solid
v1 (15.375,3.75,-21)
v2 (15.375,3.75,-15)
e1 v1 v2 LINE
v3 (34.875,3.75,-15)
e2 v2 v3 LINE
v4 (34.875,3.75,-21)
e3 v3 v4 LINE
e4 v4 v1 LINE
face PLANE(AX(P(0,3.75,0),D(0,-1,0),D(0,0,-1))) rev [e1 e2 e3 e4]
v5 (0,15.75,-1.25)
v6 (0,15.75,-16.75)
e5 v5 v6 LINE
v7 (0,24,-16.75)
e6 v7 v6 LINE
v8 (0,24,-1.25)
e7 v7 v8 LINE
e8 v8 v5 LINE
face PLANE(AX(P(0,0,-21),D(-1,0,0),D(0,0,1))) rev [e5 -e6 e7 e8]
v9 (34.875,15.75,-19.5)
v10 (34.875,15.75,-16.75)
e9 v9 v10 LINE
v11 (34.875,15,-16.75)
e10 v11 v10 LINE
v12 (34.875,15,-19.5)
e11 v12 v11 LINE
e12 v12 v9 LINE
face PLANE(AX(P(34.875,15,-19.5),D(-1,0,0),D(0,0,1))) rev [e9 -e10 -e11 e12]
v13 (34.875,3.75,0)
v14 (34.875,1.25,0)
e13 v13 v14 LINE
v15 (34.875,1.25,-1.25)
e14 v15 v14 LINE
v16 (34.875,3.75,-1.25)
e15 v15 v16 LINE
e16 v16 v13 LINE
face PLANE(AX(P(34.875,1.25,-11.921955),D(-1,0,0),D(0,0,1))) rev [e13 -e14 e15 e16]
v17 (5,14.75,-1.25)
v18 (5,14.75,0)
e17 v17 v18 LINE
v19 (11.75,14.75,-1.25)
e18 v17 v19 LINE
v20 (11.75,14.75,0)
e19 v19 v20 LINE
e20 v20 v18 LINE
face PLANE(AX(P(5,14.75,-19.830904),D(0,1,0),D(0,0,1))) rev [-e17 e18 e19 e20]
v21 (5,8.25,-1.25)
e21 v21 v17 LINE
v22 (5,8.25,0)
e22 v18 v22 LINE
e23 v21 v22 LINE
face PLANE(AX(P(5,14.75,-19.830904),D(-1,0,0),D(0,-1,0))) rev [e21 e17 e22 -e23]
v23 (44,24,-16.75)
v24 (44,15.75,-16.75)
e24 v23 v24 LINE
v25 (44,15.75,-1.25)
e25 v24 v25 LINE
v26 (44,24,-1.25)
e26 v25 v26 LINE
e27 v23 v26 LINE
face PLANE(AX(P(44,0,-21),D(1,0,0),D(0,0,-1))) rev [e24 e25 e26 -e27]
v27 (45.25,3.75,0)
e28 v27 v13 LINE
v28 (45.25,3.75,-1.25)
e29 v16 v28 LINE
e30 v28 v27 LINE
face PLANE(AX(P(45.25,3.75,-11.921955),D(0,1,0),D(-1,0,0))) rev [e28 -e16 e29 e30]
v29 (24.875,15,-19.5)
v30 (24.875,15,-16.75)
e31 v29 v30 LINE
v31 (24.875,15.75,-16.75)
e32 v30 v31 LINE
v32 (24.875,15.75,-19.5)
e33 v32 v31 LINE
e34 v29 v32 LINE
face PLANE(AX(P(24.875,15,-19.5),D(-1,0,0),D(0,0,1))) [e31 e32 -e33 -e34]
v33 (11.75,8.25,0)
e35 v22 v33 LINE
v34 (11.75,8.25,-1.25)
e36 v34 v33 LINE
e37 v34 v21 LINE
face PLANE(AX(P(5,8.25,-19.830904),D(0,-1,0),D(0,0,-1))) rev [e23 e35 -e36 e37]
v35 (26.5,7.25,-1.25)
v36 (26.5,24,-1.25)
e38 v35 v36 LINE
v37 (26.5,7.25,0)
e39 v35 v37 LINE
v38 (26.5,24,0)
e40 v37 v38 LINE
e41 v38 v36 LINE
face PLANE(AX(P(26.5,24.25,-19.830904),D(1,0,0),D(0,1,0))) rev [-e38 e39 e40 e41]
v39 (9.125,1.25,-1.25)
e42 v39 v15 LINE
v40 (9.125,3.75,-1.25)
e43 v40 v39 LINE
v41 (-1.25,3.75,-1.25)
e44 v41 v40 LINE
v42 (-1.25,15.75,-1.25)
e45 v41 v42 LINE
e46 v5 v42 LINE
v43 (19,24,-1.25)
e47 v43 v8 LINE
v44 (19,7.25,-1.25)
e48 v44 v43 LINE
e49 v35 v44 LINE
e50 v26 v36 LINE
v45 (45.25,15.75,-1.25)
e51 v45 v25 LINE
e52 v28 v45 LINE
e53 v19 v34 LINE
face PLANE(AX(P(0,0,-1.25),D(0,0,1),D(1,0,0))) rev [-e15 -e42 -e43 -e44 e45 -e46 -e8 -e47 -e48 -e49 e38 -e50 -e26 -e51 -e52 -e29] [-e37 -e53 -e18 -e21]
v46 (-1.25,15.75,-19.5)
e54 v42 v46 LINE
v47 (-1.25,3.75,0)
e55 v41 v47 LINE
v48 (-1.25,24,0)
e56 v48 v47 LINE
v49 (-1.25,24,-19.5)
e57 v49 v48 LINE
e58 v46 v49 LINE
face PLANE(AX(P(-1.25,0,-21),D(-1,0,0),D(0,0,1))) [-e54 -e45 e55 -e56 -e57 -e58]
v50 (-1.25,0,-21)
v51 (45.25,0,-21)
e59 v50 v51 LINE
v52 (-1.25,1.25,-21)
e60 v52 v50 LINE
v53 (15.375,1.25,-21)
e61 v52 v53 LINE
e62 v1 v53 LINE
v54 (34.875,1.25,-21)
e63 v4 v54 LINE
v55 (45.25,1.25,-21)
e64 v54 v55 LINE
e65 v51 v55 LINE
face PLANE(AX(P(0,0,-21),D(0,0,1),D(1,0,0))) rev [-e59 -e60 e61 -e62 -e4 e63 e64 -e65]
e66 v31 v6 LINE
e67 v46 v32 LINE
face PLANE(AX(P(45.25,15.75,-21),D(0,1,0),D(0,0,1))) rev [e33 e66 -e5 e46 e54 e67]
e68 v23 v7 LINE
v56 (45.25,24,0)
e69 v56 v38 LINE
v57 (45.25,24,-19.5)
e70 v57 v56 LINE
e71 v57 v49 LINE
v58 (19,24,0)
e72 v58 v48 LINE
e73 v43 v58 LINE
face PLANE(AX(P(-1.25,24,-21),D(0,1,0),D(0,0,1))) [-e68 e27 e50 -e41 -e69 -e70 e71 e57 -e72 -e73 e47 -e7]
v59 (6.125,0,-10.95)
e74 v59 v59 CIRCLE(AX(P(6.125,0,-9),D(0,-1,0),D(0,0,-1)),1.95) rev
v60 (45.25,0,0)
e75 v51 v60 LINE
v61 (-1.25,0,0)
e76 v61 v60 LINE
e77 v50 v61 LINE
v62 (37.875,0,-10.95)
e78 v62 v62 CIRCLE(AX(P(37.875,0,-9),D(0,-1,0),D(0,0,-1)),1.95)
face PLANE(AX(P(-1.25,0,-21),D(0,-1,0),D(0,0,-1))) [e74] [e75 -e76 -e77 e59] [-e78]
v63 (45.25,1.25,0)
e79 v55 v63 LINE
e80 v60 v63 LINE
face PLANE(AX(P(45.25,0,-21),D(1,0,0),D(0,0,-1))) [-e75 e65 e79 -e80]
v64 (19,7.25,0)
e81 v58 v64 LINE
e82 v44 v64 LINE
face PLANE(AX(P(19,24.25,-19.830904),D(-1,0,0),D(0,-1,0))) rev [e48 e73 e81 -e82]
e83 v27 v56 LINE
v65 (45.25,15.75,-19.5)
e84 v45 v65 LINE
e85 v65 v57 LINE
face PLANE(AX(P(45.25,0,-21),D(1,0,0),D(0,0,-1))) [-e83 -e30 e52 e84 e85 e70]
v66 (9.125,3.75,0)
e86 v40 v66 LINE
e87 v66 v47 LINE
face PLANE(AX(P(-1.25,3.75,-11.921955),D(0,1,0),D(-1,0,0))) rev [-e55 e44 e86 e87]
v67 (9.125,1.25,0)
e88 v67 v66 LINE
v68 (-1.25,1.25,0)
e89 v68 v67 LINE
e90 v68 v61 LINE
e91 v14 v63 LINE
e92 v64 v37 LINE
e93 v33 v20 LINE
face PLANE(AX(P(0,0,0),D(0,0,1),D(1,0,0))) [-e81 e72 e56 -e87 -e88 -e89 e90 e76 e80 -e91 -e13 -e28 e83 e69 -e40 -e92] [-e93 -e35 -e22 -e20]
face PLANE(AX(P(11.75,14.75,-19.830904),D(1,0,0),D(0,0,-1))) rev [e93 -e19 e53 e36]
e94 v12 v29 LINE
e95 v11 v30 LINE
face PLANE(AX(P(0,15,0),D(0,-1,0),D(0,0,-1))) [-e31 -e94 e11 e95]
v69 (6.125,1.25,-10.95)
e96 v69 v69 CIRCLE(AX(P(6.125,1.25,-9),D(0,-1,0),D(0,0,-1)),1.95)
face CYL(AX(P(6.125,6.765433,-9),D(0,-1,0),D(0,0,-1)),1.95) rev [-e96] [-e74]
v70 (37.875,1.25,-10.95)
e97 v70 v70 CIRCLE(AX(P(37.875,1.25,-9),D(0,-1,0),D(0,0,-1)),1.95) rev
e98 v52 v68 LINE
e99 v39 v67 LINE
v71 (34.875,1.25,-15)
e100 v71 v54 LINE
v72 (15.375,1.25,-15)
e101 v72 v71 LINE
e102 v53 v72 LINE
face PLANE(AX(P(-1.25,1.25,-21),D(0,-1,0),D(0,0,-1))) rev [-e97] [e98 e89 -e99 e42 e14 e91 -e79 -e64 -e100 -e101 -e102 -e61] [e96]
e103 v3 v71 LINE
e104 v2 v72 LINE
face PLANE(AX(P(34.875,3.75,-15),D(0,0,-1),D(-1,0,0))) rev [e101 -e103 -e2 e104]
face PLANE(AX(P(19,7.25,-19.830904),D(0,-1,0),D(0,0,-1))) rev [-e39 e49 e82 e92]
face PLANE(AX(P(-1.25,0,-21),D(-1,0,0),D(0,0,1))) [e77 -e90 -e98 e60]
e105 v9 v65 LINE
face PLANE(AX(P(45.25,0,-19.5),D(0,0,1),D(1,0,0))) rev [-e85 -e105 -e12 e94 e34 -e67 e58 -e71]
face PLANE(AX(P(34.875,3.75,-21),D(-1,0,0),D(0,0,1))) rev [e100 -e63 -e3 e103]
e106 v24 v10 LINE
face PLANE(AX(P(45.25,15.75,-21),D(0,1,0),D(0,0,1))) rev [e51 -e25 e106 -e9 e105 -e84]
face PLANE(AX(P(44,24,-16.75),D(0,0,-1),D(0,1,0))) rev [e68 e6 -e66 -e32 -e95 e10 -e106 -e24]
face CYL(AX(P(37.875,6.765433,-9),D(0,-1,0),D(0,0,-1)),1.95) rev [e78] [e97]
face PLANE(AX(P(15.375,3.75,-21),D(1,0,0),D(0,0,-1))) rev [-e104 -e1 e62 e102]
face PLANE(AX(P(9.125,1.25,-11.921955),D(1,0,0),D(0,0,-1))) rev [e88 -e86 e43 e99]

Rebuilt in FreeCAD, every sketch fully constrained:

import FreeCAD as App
import Part
import Sketcher
Q = App.Units.Quantity


def faces_at(feature, points):
    """Names of the faces that lie closest to the given points."""
    faces = feature.Shape.Faces
    near = lambda p: min(range(len(faces)), key=lambda i: faces[i].distToShape(Part.Vertex(*p))[0])
    return sorted({f"Face{near(p) + 1}" for p in points})

doc = App.newDocument("Part")
params = doc.addObject("Spreadsheet::Sheet", "Params")
for row, (alias, value) in enumerate([
    ("sketch1_height", "24 mm"),
    ("sketch1_width", "46.5 mm"),
    ("pad1_length", "21 mm"),
    ("thickness_wall", "1.25 mm"),
    ("sketch2_width", "14.5 mm"),
    ("sketch2_height", "19.75 mm"),
    ("sketch3_height", "17 mm"),
    ("sketch3_width", "7.5 mm"),
    ("sketch3_height2", "6.5 mm"),
    ("sketch3_width2", "6.75 mm"),
    ("pocket2_length", "1.25 mm"),
    ("sketch4_diameter", "3.9 mm"),
    ("sketch5_diameter", "3.9 mm"),
    ("sketch6_height", "2.5 mm"),
    ("pocket5_length", "1.25 mm"),
    ("sketch7_height", "6 mm"),
    ("sketch7_width", "19.5 mm"),
    ("pad2_length", "2.5 mm"),
    ("sketch8_height", "1.5 mm"),
    ("sketch8_width", "8.25 mm"),
    ("sketch9_width", "8.25 mm"),
    ("sketch9_height", "2.75 mm"),
    ("pad3_length", "44 mm"),
    ("sketch10_width", "10 mm"),
    ("sketch10_height", "2.75 mm"),
    ("pad4_length", "0.75 mm"),
], start=1):
    params.set(f"A{row}", alias)
    params.set(f"B{row}", "=" + value)
    params.setAlias(f"B{row}", alias)

body = doc.addObject("PartDesign::Body", "Body")

# Sketch on XY plane
sketch1 = body.newObject("Sketcher::SketchObject", "Sketch")
sketch1.AttachmentSupport = (doc.getObject("XY_Plane"), [""])
sketch1.MapMode = "FlatFace"
sketch1.addGeometry([
    Part.LineSegment(App.Vector(-1, 24, 0), App.Vector(-1, 0, 0)),
    Part.LineSegment(App.Vector(-1, 0, 0), App.Vector(45, 0, 0)),
    Part.LineSegment(App.Vector(45, 0, 0), App.Vector(45, 24, 0)),
    Part.LineSegment(App.Vector(45, 24, 0), App.Vector(-1, 24, 0)),
], False)
sketch1.addConstraint([
    Sketcher.Constraint("Coincident", 0, 2, 1, 1),
    Sketcher.Constraint("Coincident", 1, 2, 2, 1),
    Sketcher.Constraint("Coincident", 2, 2, 3, 1),
    Sketcher.Constraint("Coincident", 3, 2, 0, 1),
    Sketcher.Constraint("Vertical", 0),
    Sketcher.Constraint("Horizontal", 1),
    Sketcher.Constraint("Vertical", 2),
    Sketcher.Constraint("Horizontal", 3),
    Sketcher.Constraint("PointOnObject", 0, 2, -1),
    Sketcher.Constraint("DistanceY", 0, 2, 0, 1, Q("24 mm")),
    Sketcher.Constraint("DistanceX", 1, 1, 1, 2, Q("46.5 mm")),
    Sketcher.Constraint("DistanceX", 0, 2, -1, 1, Q("1.25 mm")),
])
sketch1.setExpression("Constraints[9]", "Params.sketch1_height")
sketch1.setExpression("Constraints[10]", "Params.sketch1_width")
pad1 = body.newObject("PartDesign::Pad", "Pad")
pad1.Profile = sketch1
pad1.setExpression("Length", "Params.pad1_length")
pad1.Reversed = True
doc.recompute()

thickness = body.newObject("PartDesign::Thickness", "Thickness")
thickness.Base = (pad1, faces_at(pad1, [(22, 12, -21), (22, 24, -10.5)]))
thickness.setExpression("Value", "Params.thickness_wall")
thickness.Reversed = True
thickness.Join = "Intersection"

# Sketch on YZ plane
sketch2 = body.newObject("Sketcher::SketchObject", "Sketch001")
sketch2.AttachmentSupport = (doc.getObject("YZ_Plane"), [""])
sketch2.MapMode = "FlatFace"
sketch2.AttachmentOffset = App.Placement(App.Vector(0, 0, -1.25), App.Rotation())
sketch2.addGeometry([
    Part.LineSegment(App.Vector(16, -21, 0), App.Vector(1, -21, 0)),
    Part.LineSegment(App.Vector(1, -21, 0), App.Vector(1, -1, 0)),
    Part.LineSegment(App.Vector(1, -1, 0), App.Vector(16, -1, 0)),
    Part.LineSegment(App.Vector(16, -1, 0), App.Vector(16, -21, 0)),
], False)
sketch2.addConstraint([
    Sketcher.Constraint("Coincident", 0, 2, 1, 1),
    Sketcher.Constraint("Coincident", 1, 2, 2, 1),
    Sketcher.Constraint("Coincident", 2, 2, 3, 1),
    Sketcher.Constraint("Coincident", 3, 2, 0, 1),
    Sketcher.Constraint("Horizontal", 0),
    Sketcher.Constraint("Vertical", 1),
    Sketcher.Constraint("Horizontal", 2),
    Sketcher.Constraint("Vertical", 3),
    Sketcher.Constraint("DistanceX", 0, 2, 0, 1, Q("14.5 mm")),
    Sketcher.Constraint("DistanceY", 0, 2, -1, 1, Q("21 mm")),
    Sketcher.Constraint("DistanceY", 1, 1, 1, 2, Q("19.75 mm")),
    Sketcher.Constraint("DistanceX", -1, 1, 0, 2, Q("1.25 mm")),
])
sketch2.setExpression("Constraints[8]", "Params.sketch2_width")
sketch2.setExpression("Constraints[10]", "Params.sketch2_height")
pocket1 = body.newObject("PartDesign::Pocket", "Pocket")
pocket1.Profile = sketch2
pocket1.Type = "ThroughAll"
pocket1.Reversed = True

# Sketch on XY plane
sketch3 = body.newObject("Sketcher::SketchObject", "Sketch002")
sketch3.AttachmentSupport = (doc.getObject("XY_Plane"), [""])
sketch3.MapMode = "FlatFace"
sketch3.addGeometry([
    Part.LineSegment(App.Vector(5, 15, 0), App.Vector(5, 8, 0)),  # 0
    Part.LineSegment(App.Vector(5, 8, 0), App.Vector(12, 8, 0)),  # 1
    Part.LineSegment(App.Vector(12, 8, 0), App.Vector(12, 15, 0)),  # 2
    Part.LineSegment(App.Vector(12, 15, 0), App.Vector(5, 15, 0)),  # 3
    Part.LineSegment(App.Vector(19, 24, 0), App.Vector(19, 7, 0)),  # 4
    Part.LineSegment(App.Vector(19, 7, 0), App.Vector(26, 7, 0)),  # 5
    Part.LineSegment(App.Vector(26, 7, 0), App.Vector(26, 24, 0)),  # 6
    Part.LineSegment(App.Vector(26, 24, 0), App.Vector(19, 24, 0)),  # 7
], False)
sketch3.addConstraint([
    Sketcher.Constraint("Coincident", 0, 2, 1, 1),
    Sketcher.Constraint("Coincident", 1, 2, 2, 1),
    Sketcher.Constraint("Coincident", 2, 2, 3, 1),
    Sketcher.Constraint("Coincident", 3, 2, 0, 1),
    Sketcher.Constraint("Coincident", 4, 2, 5, 1),
    Sketcher.Constraint("Coincident", 5, 2, 6, 1),
    Sketcher.Constraint("Coincident", 6, 2, 7, 1),
    Sketcher.Constraint("Coincident", 7, 2, 4, 1),
    Sketcher.Constraint("Vertical", 0),
    Sketcher.Constraint("Horizontal", 1),
    Sketcher.Constraint("Vertical", 2),
    Sketcher.Constraint("Horizontal", 3),
    Sketcher.Constraint("Vertical", 4),
    Sketcher.Constraint("Horizontal", 5),
    Sketcher.Constraint("Vertical", 6),
    Sketcher.Constraint("Horizontal", 7),
    Sketcher.Constraint("DistanceY", 4, 2, 4, 1, Q("17 mm")),
    Sketcher.Constraint("DistanceX", 5, 1, 5, 2, Q("7.5 mm")),
    Sketcher.Constraint("DistanceY", 0, 2, 0, 1, Q("6.5 mm")),
    Sketcher.Constraint("DistanceX", -1, 1, 0, 2, Q("5 mm")),
    Sketcher.Constraint("DistanceX", -1, 1, 4, 2, Q("19 mm")),
    Sketcher.Constraint("DistanceY", 4, 2, 1, 2, Q("1 mm")),
    Sketcher.Constraint("DistanceX", 1, 1, 1, 2, Q("6.75 mm")),
    Sketcher.Constraint("DistanceY", -1, 1, 0, 2, Q("8.25 mm")),
])
sketch3.setExpression("Constraints[16]", "Params.sketch3_height")
sketch3.setExpression("Constraints[17]", "Params.sketch3_width")
sketch3.setExpression("Constraints[18]", "Params.sketch3_height2")
sketch3.setExpression("Constraints[22]", "Params.sketch3_width2")
pocket2 = body.newObject("PartDesign::Pocket", "Pocket001")
pocket2.Profile = sketch3
pocket2.setExpression("Length", "Params.pocket2_length")

# Sketch on XZ plane
sketch4 = body.newObject("Sketcher::SketchObject", "Sketch003")
sketch4.AttachmentSupport = (doc.getObject("XZ_Plane"), [""])
sketch4.MapMode = "FlatFace"
sketch4.addGeometry(Part.Circle(App.Vector(6.1, -9, 0), App.Vector(0, 0, 1), 1.9), False)
sketch4.addConstraint([
    Sketcher.Constraint("Diameter", 0, Q("3.9 mm")),
    Sketcher.Constraint("DistanceY", 0, 3, -1, 1, Q("9 mm")),
    Sketcher.Constraint("DistanceX", -1, 1, 0, 3, Q("6.125 mm")),
])
sketch4.setExpression("Constraints[0]", "Params.sketch4_diameter")
pocket3 = body.newObject("PartDesign::Pocket", "Pocket002")
pocket3.Profile = sketch4
pocket3.Type = "UpToFirst"

# Sketch on XZ plane
sketch5 = body.newObject("Sketcher::SketchObject", "Sketch004")
sketch5.AttachmentSupport = (doc.getObject("XZ_Plane"), [""])
sketch5.MapMode = "FlatFace"
sketch5.addGeometry(Part.Circle(App.Vector(37.9, -9, 0), App.Vector(0, 0, 1), 1.9), False)
sketch5.addConstraint([
    Sketcher.Constraint("Diameter", 0, Q("3.9 mm")),
    Sketcher.Constraint("DistanceY", 0, 3, -1, 1, Q("9 mm")),
    Sketcher.Constraint("DistanceX", -1, 1, 0, 3, Q("37.875 mm")),
])
sketch5.setExpression("Constraints[0]", "Params.sketch5_diameter")
pocket4 = body.newObject("PartDesign::Pocket", "Pocket003")
pocket4.Profile = sketch5
pocket4.Type = "UpToFirst"

# Sketch on XY plane
sketch6 = body.newObject("Sketcher::SketchObject", "Sketch005")
sketch6.AttachmentSupport = (doc.getObject("XY_Plane"), [""])
sketch6.MapMode = "FlatFace"
sketch6.addGeometry([
    Part.LineSegment(App.Vector(34.9, 3.8, 0), App.Vector(34.9, 1.2, 0)),  # 0
    Part.LineSegment(App.Vector(34.9, 1.2, 0), App.Vector(45.2, 1.2, 0)),  # 1
    Part.LineSegment(App.Vector(45.2, 1.2, 0), App.Vector(45.2, 3.8, 0)),  # 2
    Part.LineSegment(App.Vector(45.2, 3.8, 0), App.Vector(34.9, 3.8, 0)),  # 3
    Part.LineSegment(App.Vector(-1.2, 3.8, 0), App.Vector(-1.2, 1.2, 0)),  # 4
    Part.LineSegment(App.Vector(-1.2, 1.2, 0), App.Vector(9.1, 1.2, 0)),  # 5
    Part.LineSegment(App.Vector(9.1, 1.2, 0), App.Vector(9.1, 3.8, 0)),  # 6
    Part.LineSegment(App.Vector(9.1, 3.8, 0), App.Vector(-1.2, 3.8, 0)),  # 7
], False)
sketch6.addConstraint([
    Sketcher.Constraint("Coincident", 0, 2, 1, 1),
    Sketcher.Constraint("Coincident", 1, 2, 2, 1),
    Sketcher.Constraint("Coincident", 2, 2, 3, 1),
    Sketcher.Constraint("Coincident", 3, 2, 0, 1),
    Sketcher.Constraint("Coincident", 4, 2, 5, 1),
    Sketcher.Constraint("Coincident", 5, 2, 6, 1),
    Sketcher.Constraint("Coincident", 6, 2, 7, 1),
    Sketcher.Constraint("Coincident", 7, 2, 4, 1),
    Sketcher.Constraint("Vertical", 0),
    Sketcher.Constraint("Horizontal", 1),
    Sketcher.Constraint("Vertical", 2),
    Sketcher.Constraint("Horizontal", 3),
    Sketcher.Constraint("Vertical", 4),
    Sketcher.Constraint("Horizontal", 5),
    Sketcher.Constraint("Vertical", 6),
    Sketcher.Constraint("Horizontal", 7),
    Sketcher.Constraint("Horizontal", 1, 2, 4, 2),
    Sketcher.Constraint("Horizontal", 3, 2, 6, 2),
    Sketcher.Constraint("Equal", 3, 5),
    Sketcher.Constraint("DistanceY", 0, 2, 0, 1, Q("2.5 mm")),
    Sketcher.Constraint("DistanceX", 4, 2, 1, 2, Q("46.5 mm")),
    Sketcher.Constraint("DistanceX", 1, 1, 1, 2, Q("10.375 mm")),
    Sketcher.Constraint("DistanceY", -1, 1, 0, 2, Q("1.25 mm")),
    Sketcher.Constraint("DistanceX", -1, 1, 1, 2, Q("45.25 mm")),
])
sketch6.setExpression("Constraints[19]", "Params.sketch6_height")
pocket5 = body.newObject("PartDesign::Pocket", "Pocket004")
pocket5.Profile = sketch6
pocket5.setExpression("Length", "Params.pocket5_length")

# Sketch on XZ plane
sketch7 = body.newObject("Sketcher::SketchObject", "Sketch006")
sketch7.AttachmentSupport = (doc.getObject("XZ_Plane"), [""])
sketch7.MapMode = "FlatFace"
sketch7.AttachmentOffset = App.Placement(App.Vector(0, 0, -1.25), App.Rotation())
sketch7.addGeometry([
    Part.LineSegment(App.Vector(15, -21, 0), App.Vector(15, -15, 0)),
    Part.LineSegment(App.Vector(15, -15, 0), App.Vector(35, -15, 0)),
    Part.LineSegment(App.Vector(35, -15, 0), App.Vector(35, -21, 0)),
    Part.LineSegment(App.Vector(35, -21, 0), App.Vector(15, -21, 0)),
], False)
sketch7.addConstraint([
    Sketcher.Constraint("Coincident", 0, 2, 1, 1),
    Sketcher.Constraint("Coincident", 1, 2, 2, 1),
    Sketcher.Constraint("Coincident", 2, 2, 3, 1),
    Sketcher.Constraint("Coincident", 3, 2, 0, 1),
    Sketcher.Constraint("Vertical", 0),
    Sketcher.Constraint("Horizontal", 1),
    Sketcher.Constraint("Vertical", 2),
    Sketcher.Constraint("Horizontal", 3),
    Sketcher.Constraint("DistanceY", 0, 1, 0, 2, Q("6 mm")),
    Sketcher.Constraint("DistanceX", 1, 1, 1, 2, Q("19.5 mm")),
    Sketcher.Constraint("DistanceY", 0, 2, -1, 1, Q("15 mm")),
    Sketcher.Constraint("DistanceX", -1, 1, 0, 2, Q("15.375 mm")),
])
sketch7.setExpression("Constraints[8]", "Params.sketch7_height")
sketch7.setExpression("Constraints[9]", "Params.sketch7_width")
pad2 = body.newObject("PartDesign::Pad", "Pad001")
pad2.Profile = sketch7
pad2.setExpression("Length", "Params.pad2_length")
pad2.Reversed = True

# Sketch on YZ plane
sketch8 = body.newObject("Sketcher::SketchObject", "Sketch007")
sketch8.AttachmentSupport = (doc.getObject("YZ_Plane"), [""])
sketch8.MapMode = "FlatFace"
sketch8.addGeometry([
    Part.LineSegment(App.Vector(24, -19.5, 0), App.Vector(15.8, -19.5, 0)),
    Part.LineSegment(App.Vector(15.8, -19.5, 0), App.Vector(15.8, -21, 0)),
    Part.LineSegment(App.Vector(15.8, -21, 0), App.Vector(24, -21, 0)),
    Part.LineSegment(App.Vector(24, -21, 0), App.Vector(24, -19.5, 0)),
], False)
sketch8.addConstraint([
    Sketcher.Constraint("Coincident", 0, 2, 1, 1),
    Sketcher.Constraint("Coincident", 1, 2, 2, 1),
    Sketcher.Constraint("Coincident", 2, 2, 3, 1),
    Sketcher.Constraint("Coincident", 3, 2, 0, 1),
    Sketcher.Constraint("Horizontal", 0),
    Sketcher.Constraint("Vertical", 1),
    Sketcher.Constraint("Horizontal", 2),
    Sketcher.Constraint("Vertical", 3),
    Sketcher.Constraint("DistanceY", 1, 2, 1, 1, Q("1.5 mm")),
    Sketcher.Constraint("DistanceY", 1, 2, -1, 1, Q("21 mm")),
    Sketcher.Constraint("DistanceX", -1, 1, 2, 2, Q("24 mm")),
    Sketcher.Constraint("DistanceX", 0, 2, 0, 1, Q("8.25 mm")),
])
sketch8.setExpression("Constraints[8]", "Params.sketch8_height")
sketch8.setExpression("Constraints[11]", "Params.sketch8_width")
pocket6 = body.newObject("PartDesign::Pocket", "Pocket005")
pocket6.Profile = sketch8
pocket6.Type = "ThroughAll"
pocket6.Midplane = True

# Sketch on YZ plane
sketch9 = body.newObject("Sketcher::SketchObject", "Sketch008")
sketch9.AttachmentSupport = (doc.getObject("YZ_Plane"), [""])
sketch9.MapMode = "FlatFace"
sketch9.addGeometry([
    Part.LineSegment(App.Vector(24, -16.8, 0), App.Vector(15.8, -16.8, 0)),
    Part.LineSegment(App.Vector(15.8, -16.8, 0), App.Vector(15.8, -19.5, 0)),
    Part.LineSegment(App.Vector(15.8, -19.5, 0), App.Vector(24, -19.5, 0)),
    Part.LineSegment(App.Vector(24, -19.5, 0), App.Vector(24, -16.8, 0)),
], False)
sketch9.addConstraint([
    Sketcher.Constraint("Coincident", 0, 2, 1, 1),
    Sketcher.Constraint("Coincident", 1, 2, 2, 1),
    Sketcher.Constraint("Coincident", 2, 2, 3, 1),
    Sketcher.Constraint("Coincident", 3, 2, 0, 1),
    Sketcher.Constraint("Horizontal", 0),
    Sketcher.Constraint("Vertical", 1),
    Sketcher.Constraint("Horizontal", 2),
    Sketcher.Constraint("Vertical", 3),
    Sketcher.Constraint("DistanceX", -1, 1, 2, 2, Q("24 mm")),
    Sketcher.Constraint("DistanceX", 0, 2, 0, 1, Q("8.25 mm")),
    Sketcher.Constraint("DistanceY", 1, 2, 1, 1, Q("2.75 mm")),
    Sketcher.Constraint("DistanceY", 1, 2, -1, 1, Q("19.5 mm")),
])
sketch9.setExpression("Constraints[9]", "Params.sketch9_width")
sketch9.setExpression("Constraints[10]", "Params.sketch9_height")
pad3 = body.newObject("PartDesign::Pad", "Pad002")
pad3.Profile = sketch9
pad3.setExpression("Length", "Params.pad3_length")

# Sketch on XZ plane
sketch10 = body.newObject("Sketcher::SketchObject", "Sketch009")
sketch10.AttachmentSupport = (doc.getObject("XZ_Plane"), [""])
sketch10.MapMode = "FlatFace"
sketch10.AttachmentOffset = App.Placement(App.Vector(0, 0, -15.75), App.Rotation())
sketch10.addGeometry([
    Part.LineSegment(App.Vector(24.9, -16.8, 0), App.Vector(24.9, -19.5, 0)),
    Part.LineSegment(App.Vector(24.9, -19.5, 0), App.Vector(34.9, -19.5, 0)),
    Part.LineSegment(App.Vector(34.9, -19.5, 0), App.Vector(34.9, -16.8, 0)),
    Part.LineSegment(App.Vector(34.9, -16.8, 0), App.Vector(24.9, -16.8, 0)),
], False)
sketch10.addConstraint([
    Sketcher.Constraint("Coincident", 0, 2, 1, 1),
    Sketcher.Constraint("Coincident", 1, 2, 2, 1),
    Sketcher.Constraint("Coincident", 2, 2, 3, 1),
    Sketcher.Constraint("Coincident", 3, 2, 0, 1),
    Sketcher.Constraint("Vertical", 0),
    Sketcher.Constraint("Horizontal", 1),
    Sketcher.Constraint("Vertical", 2),
    Sketcher.Constraint("Horizontal", 3),
    Sketcher.Constraint("DistanceX", 1, 1, 1, 2, Q("10 mm")),
    Sketcher.Constraint("DistanceY", 0, 2, 0, 1, Q("2.75 mm")),
    Sketcher.Constraint("DistanceY", 0, 2, -1, 1, Q("19.5 mm")),
    Sketcher.Constraint("DistanceX", -1, 1, 0, 2, Q("24.875 mm")),
])
sketch10.setExpression("Constraints[8]", "Params.sketch10_width")
sketch10.setExpression("Constraints[9]", "Params.sketch10_height")
pad4 = body.newObject("PartDesign::Pad", "Pad003")
pad4.Profile = sketch10
pad4.setExpression("Length", "Params.pad4_length")

doc.recompute()
